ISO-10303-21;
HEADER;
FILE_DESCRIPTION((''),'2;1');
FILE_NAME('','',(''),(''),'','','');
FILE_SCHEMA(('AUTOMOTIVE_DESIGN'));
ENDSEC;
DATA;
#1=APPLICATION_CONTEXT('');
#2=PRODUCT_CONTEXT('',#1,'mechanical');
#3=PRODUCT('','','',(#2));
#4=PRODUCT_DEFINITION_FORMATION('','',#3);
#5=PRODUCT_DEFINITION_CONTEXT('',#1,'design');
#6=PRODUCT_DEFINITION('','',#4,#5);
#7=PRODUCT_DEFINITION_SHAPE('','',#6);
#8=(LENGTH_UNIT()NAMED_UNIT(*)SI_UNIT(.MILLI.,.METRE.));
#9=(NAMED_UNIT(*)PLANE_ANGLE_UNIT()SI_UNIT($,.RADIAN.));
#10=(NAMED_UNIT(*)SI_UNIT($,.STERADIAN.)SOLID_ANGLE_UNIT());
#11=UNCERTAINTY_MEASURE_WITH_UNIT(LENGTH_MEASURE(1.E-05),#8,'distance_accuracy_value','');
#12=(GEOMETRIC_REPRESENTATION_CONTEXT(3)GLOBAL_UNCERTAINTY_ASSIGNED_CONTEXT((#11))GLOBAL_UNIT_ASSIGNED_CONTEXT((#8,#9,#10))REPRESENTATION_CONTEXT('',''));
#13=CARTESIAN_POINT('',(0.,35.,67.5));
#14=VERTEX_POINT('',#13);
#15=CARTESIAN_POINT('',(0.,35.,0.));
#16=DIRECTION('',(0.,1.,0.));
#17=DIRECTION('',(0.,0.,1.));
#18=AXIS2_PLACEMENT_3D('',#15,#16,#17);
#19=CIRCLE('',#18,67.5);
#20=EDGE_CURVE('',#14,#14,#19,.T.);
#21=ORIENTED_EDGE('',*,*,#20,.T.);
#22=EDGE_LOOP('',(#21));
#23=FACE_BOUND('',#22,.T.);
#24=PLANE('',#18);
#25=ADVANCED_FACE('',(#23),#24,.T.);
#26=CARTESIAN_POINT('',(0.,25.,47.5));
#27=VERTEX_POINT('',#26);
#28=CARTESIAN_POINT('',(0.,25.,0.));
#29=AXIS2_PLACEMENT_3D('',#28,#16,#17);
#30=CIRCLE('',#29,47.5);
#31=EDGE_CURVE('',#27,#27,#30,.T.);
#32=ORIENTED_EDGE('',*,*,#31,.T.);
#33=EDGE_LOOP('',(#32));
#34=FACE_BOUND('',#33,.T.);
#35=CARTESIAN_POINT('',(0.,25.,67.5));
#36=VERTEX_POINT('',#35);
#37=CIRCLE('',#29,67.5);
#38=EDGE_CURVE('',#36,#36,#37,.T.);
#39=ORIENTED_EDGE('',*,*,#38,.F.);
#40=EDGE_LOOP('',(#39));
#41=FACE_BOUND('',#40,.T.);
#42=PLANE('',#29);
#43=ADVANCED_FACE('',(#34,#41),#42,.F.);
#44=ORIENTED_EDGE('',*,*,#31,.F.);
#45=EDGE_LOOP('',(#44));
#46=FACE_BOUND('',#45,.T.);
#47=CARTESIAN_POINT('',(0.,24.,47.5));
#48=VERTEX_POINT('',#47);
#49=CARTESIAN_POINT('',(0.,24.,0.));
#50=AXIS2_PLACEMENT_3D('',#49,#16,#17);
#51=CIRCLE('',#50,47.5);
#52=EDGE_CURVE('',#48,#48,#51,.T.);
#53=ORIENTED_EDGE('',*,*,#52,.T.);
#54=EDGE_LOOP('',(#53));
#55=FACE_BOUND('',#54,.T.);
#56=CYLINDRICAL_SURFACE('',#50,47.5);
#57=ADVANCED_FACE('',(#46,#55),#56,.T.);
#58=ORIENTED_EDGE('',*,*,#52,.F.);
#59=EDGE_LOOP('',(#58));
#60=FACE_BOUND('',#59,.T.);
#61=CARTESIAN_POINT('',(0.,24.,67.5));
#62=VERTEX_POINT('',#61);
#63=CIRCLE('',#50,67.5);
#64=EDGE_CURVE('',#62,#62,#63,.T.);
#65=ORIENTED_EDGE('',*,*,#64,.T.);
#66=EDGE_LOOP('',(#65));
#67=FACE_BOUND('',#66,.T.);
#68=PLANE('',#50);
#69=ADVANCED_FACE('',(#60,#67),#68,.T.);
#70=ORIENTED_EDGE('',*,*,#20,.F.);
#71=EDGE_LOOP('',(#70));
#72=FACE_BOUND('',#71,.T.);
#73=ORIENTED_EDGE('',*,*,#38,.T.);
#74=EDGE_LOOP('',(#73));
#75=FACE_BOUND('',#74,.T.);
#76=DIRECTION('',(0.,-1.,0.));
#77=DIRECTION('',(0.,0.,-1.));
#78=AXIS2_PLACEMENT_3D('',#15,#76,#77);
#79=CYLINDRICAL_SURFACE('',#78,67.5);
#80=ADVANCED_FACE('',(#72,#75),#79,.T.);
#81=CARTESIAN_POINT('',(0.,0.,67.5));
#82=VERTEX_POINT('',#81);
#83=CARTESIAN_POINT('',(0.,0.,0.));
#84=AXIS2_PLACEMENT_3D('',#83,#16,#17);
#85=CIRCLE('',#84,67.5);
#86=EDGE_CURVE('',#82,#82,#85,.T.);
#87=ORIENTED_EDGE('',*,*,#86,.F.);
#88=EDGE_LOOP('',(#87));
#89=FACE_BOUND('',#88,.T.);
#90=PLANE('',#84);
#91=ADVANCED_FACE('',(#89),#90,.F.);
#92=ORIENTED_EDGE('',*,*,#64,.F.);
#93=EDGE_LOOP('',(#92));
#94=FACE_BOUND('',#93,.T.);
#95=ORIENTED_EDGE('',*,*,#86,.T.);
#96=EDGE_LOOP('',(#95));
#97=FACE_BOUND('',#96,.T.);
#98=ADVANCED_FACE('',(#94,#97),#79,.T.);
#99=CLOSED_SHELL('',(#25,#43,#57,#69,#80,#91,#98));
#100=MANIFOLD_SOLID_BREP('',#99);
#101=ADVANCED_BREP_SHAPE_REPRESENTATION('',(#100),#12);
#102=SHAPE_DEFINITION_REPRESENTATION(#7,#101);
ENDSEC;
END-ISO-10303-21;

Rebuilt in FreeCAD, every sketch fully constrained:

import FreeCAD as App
import Part
import Sketcher

V = App.Vector
Q = App.Units.Quantity

doc = App.newDocument("Part")
body = doc.addObject("PartDesign::Body", "Body")

sketch1 = body.newObject("Sketcher::SketchObject", "Sketch")
sketch1.AttachmentSupport = (doc.getObject("XZ_Plane"), [""])
sketch1.MapMode = "FlatFace"
sketch1.addGeometry(Part.Circle(V(0, 0, 0), V(0, 0, 1), 67.5), False)
sketch1.addConstraint(Sketcher.Constraint("Coincident", 0, 3, -1, 1))
sketch1.addConstraint(Sketcher.Constraint("Diameter", 0, Q("135 mm")))
pad1 = body.newObject("PartDesign::Pad", "Pad")
pad1.Profile = sketch1
pad1.Length = 35
pad1.Reversed = True

sketch2 = body.newObject("Sketcher::SketchObject", "Sketch001")
sketch2.AttachmentSupport = (doc.getObject("XZ_Plane"), [""])
sketch2.MapMode = "FlatFace"
sketch2.AttachmentOffset = App.Placement(V(0, 0, -24), App.Rotation())
sketch2.addGeometry(Part.Circle(V(0, 0, 0), V(0, 0, 1), 67.5), False)
sketch2.addGeometry(Part.Circle(V(0, 0, 0), V(0, 0, 1), 47.5), False)
sketch2.addConstraint(Sketcher.Constraint("Coincident", 0, 3, -1, 1))
sketch2.addConstraint(Sketcher.Constraint("Coincident", 1, 3, -1, 1))
sketch2.addConstraint(Sketcher.Constraint("Diameter", 0, Q("135 mm")))
sketch2.addConstraint(Sketcher.Constraint("Diameter", 1, Q("95 mm")))
pocket1 = body.newObject("PartDesign::Pocket", "Pocket")
pocket1.Profile = sketch2
pocket1.Length = 1

doc.recompute()
